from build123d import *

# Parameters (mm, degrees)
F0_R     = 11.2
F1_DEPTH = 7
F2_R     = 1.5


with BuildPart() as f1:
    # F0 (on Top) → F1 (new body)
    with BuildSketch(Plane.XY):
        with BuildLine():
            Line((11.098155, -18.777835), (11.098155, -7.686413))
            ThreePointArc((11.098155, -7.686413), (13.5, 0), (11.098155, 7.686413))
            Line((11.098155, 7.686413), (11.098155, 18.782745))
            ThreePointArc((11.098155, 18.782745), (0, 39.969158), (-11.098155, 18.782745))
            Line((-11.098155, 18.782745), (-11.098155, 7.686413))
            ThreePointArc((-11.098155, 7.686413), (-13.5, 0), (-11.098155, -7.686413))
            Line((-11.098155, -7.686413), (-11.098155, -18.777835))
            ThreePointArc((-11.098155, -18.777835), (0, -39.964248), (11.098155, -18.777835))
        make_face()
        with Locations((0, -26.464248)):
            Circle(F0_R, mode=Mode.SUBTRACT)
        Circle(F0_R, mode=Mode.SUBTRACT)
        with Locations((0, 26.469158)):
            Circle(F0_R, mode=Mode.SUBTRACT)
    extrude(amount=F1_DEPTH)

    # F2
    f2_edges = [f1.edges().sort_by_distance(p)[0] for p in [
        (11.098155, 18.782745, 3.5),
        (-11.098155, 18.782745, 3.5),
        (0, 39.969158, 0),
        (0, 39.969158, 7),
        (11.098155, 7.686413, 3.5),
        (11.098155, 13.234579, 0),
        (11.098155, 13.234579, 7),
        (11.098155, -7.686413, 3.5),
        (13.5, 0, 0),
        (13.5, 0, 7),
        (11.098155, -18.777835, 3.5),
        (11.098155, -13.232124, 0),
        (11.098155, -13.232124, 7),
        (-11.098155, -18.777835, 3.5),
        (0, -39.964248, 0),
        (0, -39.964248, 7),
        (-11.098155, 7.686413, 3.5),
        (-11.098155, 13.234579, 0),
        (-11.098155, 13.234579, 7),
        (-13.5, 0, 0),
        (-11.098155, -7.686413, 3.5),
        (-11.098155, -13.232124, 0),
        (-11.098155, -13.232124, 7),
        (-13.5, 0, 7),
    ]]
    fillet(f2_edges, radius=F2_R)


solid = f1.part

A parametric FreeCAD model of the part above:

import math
import FreeCAD as App
import Part
import Sketcher


def edges_at(feature, points):
    """Names of the edges that pass closest to the given points."""
    edges = feature.Shape.Edges
    near = lambda p: min(range(len(edges)), key=lambda i: edges[i].distToShape(Part.Vertex(*p))[0])
    return sorted({f"Edge{near(p) + 1}" for p in points})

doc = App.newDocument("Part")
body = doc.addObject("PartDesign::Body", "Body")

# Sketch on XY plane
sketch1 = body.newObject("Sketcher::SketchObject", "Sketch")
sketch1.AttachmentSupport = (doc.getObject("XY_Plane"), [""])
sketch1.MapMode = "FlatFace"
sketch1.addGeometry([
    Part.LineSegment(App.Vector(11, -19, 0), App.Vector(11, -8, 0)),  # 0
    Part.ArcOfCircle(Part.Circle(App.Vector(0, 0, 0), App.Vector(0, 0, 1), 13), math.radians(-35), math.radians(35)),  # 1
    Part.LineSegment(App.Vector(11, 8, 0), App.Vector(11, 19, 0)),  # 2
    Part.ArcOfCircle(Part.Circle(App.Vector(0, 26, 0), App.Vector(0, 0, 1), 13), math.radians(-35), math.radians(215)),  # 3
    Part.LineSegment(App.Vector(-11, 19, 0), App.Vector(-11, 8, 0)),  # 4
    Part.ArcOfCircle(Part.Circle(App.Vector(0, 0, 0), App.Vector(0, 0, 1), 13), math.radians(145), math.radians(215)),  # 5
    Part.LineSegment(App.Vector(-11, -8, 0), App.Vector(-11, -19, 0)),  # 6
    Part.ArcOfCircle(Part.Circle(App.Vector(0, -26, 0), App.Vector(0, 0, 1), 13), math.radians(145), math.radians(395)),  # 7
    Part.Circle(App.Vector(0, -26, 0), App.Vector(0, 0, 1), 11),  # 8
    Part.Circle(App.Vector(0, 0, 0), App.Vector(0, 0, 1), 11),  # 9
    Part.Circle(App.Vector(0, 26, 0), App.Vector(0, 0, 1), 11),  # 10
], False)
sketch1.addConstraint([
    Sketcher.Constraint("Coincident", 0, 2, 1, 1),
    Sketcher.Constraint("Coincident", 1, 2, 2, 1),
    Sketcher.Constraint("Coincident", 2, 2, 3, 1),
    Sketcher.Constraint("Coincident", 3, 2, 4, 1),
    Sketcher.Constraint("Coincident", 4, 2, 5, 1),
    Sketcher.Constraint("Coincident", 5, 2, 6, 1),
    Sketcher.Constraint("Coincident", 6, 2, 7, 1),
    Sketcher.Constraint("Coincident", 7, 2, 0, 1),
    Sketcher.Constraint("Vertical", 0),
    Sketcher.Constraint("Vertical", 2),
    Sketcher.Constraint("Vertical", 4),
    Sketcher.Constraint("Vertical", 6),
    Sketcher.Constraint("Coincident", 1, 3, -1, 1),
    Sketcher.Constraint("Coincident", 5, 3, -1, 1),
    Sketcher.Constraint("Coincident", 9, 3, -1, 1),
    Sketcher.Constraint("Coincident", 8, 3, 7, 3),
    Sketcher.Constraint("Coincident", 10, 3, 3, 3),
    Sketcher.Constraint("Equal", 1, 3),
    Sketcher.Constraint("Equal", 3, 5),
    Sketcher.Constraint("Equal", 5, 7),
    Sketcher.Constraint("Equal", 8, 9),
    Sketcher.Constraint("Equal", 9, 10),
    Sketcher.Constraint("Symmetric", 2, 2, 3, 2, -2),
    Sketcher.Constraint("Symmetric", 6, 2, 7, 2, -2),
    Sketcher.Constraint("Vertical", 0, 2, 1, 2),
    Sketcher.Constraint("Diameter", 8, 22.4),
    Sketcher.Constraint("Radius", 3, 13.5),
    Sketcher.Constraint("DistanceY", 2, 1, 2, 2, 11.096332),
    Sketcher.Constraint("DistanceY", 0, 1, 0, 2, 11.091422),
    Sketcher.Constraint("DistanceY", -1, 1, 3, 3, 26.469158),
])
pad1 = body.newObject("PartDesign::Pad", "Pad")
pad1.Profile = sketch1
pad1.Length = 7
doc.recompute()

fillet = body.newObject("PartDesign::Fillet", "Fillet")
fillet.Base = (pad1, edges_at(pad1, [
    (11.098, 18.783, 3.5),
    (-11.098, 18.783, 3.5),
    (0, 39.969, 0),
    (0, 39.969, 7),
    (11.098, 7.686, 3.5),
    (11.098, 13.235, 0),
    (11.098, 13.235, 7),
    (11.098, -7.686, 3.5),
    (13.5, 0, 0),
    (13.5, 0, 7),
    (11.098, -18.778, 3.5),
    (11.098, -13.232, 0),
    (11.098, -13.232, 7),
    (-11.098, -18.778, 3.5),
    (0, -39.964, 0),
    (0, -39.964, 7),
    (-11.098, 7.686, 3.5),
    (-11.098, 13.235, 0),
    (-11.098, 13.235, 7),
    (-13.5, 0, 0),
    (-11.098, -7.686, 3.5),
    (-11.098, -13.232, 0),
    (-11.098, -13.232, 7),
    (-13.5, 0, 7),
]))
fillet.Radius = 1.5

doc.recompute()
